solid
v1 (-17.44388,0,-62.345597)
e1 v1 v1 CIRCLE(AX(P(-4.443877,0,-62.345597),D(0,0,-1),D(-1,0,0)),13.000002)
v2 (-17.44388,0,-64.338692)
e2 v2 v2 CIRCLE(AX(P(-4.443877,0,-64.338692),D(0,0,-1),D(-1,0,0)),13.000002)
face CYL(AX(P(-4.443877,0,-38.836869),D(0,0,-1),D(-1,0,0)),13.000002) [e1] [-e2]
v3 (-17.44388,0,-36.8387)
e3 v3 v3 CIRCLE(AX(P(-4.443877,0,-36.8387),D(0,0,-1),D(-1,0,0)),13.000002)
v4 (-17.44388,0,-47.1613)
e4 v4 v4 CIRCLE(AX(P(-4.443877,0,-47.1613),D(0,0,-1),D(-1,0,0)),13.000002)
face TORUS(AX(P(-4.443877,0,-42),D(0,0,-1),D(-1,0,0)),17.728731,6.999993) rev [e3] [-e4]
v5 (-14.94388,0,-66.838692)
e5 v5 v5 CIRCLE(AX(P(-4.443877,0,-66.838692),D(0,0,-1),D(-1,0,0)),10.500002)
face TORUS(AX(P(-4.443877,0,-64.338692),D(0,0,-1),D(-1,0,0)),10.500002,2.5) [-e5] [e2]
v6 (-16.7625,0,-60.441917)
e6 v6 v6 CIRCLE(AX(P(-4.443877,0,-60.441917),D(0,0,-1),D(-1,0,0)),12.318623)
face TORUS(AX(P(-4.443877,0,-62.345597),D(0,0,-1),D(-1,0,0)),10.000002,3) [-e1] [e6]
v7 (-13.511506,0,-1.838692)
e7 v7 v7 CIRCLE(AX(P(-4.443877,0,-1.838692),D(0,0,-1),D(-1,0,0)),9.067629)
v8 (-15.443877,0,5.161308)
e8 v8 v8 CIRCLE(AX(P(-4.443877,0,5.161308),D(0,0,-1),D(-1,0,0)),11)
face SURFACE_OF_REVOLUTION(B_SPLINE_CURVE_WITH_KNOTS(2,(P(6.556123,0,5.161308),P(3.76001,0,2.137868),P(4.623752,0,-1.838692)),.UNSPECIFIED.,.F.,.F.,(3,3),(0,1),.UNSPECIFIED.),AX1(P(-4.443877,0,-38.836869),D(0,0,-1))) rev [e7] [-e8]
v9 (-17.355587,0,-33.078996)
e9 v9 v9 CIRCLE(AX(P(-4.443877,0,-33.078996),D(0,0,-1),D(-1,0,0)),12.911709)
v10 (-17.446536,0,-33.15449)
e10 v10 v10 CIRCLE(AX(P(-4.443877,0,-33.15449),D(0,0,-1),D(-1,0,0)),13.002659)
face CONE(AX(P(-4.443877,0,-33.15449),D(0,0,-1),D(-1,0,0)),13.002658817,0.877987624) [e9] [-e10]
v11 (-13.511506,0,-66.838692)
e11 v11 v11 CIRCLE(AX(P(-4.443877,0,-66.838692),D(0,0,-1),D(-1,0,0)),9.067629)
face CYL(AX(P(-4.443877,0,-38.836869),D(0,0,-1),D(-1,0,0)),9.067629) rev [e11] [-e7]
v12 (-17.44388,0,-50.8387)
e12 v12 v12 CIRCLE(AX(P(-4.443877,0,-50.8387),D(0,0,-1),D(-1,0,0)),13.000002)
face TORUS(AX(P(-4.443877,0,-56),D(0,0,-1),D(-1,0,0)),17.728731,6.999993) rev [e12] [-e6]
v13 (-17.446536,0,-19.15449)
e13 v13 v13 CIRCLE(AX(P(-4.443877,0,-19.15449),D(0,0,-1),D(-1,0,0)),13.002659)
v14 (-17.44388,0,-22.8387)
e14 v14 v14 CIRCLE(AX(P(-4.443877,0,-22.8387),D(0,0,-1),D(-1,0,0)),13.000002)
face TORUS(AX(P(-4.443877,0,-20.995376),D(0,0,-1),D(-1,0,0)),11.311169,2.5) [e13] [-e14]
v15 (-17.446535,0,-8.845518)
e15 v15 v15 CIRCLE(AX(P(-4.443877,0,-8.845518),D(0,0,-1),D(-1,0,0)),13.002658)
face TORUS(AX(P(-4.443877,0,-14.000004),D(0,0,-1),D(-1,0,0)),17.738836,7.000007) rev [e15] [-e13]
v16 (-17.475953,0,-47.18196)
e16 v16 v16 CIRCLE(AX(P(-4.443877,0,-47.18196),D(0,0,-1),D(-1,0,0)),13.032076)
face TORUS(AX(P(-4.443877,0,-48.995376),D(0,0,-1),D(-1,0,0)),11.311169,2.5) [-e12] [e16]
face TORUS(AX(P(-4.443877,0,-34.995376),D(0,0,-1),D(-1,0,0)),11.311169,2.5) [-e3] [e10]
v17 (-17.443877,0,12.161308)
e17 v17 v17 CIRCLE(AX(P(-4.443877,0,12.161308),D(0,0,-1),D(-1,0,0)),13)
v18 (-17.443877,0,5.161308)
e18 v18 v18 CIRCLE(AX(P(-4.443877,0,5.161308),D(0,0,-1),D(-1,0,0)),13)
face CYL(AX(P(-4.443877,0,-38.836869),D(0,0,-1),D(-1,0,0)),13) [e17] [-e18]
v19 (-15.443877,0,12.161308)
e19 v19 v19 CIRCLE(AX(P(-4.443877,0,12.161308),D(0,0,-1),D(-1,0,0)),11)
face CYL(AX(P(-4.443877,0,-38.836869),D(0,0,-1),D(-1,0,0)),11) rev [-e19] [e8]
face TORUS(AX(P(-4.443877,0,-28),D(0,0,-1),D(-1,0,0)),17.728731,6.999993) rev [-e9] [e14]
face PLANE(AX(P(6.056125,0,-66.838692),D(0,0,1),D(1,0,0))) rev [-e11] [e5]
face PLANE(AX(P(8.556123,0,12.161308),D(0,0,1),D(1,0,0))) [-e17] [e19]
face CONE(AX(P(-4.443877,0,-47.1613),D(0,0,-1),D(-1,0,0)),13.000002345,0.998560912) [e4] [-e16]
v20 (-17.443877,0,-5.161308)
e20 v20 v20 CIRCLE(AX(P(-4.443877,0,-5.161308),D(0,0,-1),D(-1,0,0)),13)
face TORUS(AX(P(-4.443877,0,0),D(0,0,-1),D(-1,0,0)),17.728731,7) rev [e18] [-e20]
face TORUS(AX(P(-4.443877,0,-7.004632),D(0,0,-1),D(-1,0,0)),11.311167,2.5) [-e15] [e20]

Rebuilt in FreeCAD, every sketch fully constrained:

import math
import FreeCAD as App
import Part
import Sketcher
Q = App.Units.Quantity

doc = App.newDocument("Part")
body = doc.addObject("PartDesign::Body", "Body")

# Sketch on XZ plane
sketch1 = doc.addObject("Sketcher::SketchObject", "Sketch")
body.addObject(sketch1)
sketch1.AttachmentSupport = (doc.XZ_Plane, [""])
sketch1.MapMode = "FlatFace"
sketch1.addGeometry([
    Part.LineSegment(App.Vector(6.556123, 12.161308, 0), App.Vector(8.556123, 12.161308, 0)),  # 0
    Part.LineSegment(App.Vector(8.556123, 12.161308, 0), App.Vector(8.556123, 5.161308, 0)),  # 1
    Part.ArcOfCircle(Part.Circle(App.Vector(13.284854, 0, 0), App.Vector(0, 0, 1), 7), math.radians(132.495557), math.radians(227.504443)),  # 2
    Part.ArcOfCircle(Part.Circle(App.Vector(6.86729, -7.004632, 0), App.Vector(0, 0, 1), 2.5), math.radians(-47.421777), math.radians(47.504443)),  # 3
    Part.ArcOfCircle(Part.Circle(App.Vector(13.294958, -14.000004, 0), App.Vector(0, 0, 1), 7.000007), math.radians(132.578223), math.radians(227.421789)),  # 4
    Part.ArcOfCircle(Part.Circle(App.Vector(6.867291, -20.995376, 0), App.Vector(0, 0, 1), 2.5), math.radians(-47.504414), math.radians(47.421789)),  # 5
    Part.ArcOfCircle(Part.Circle(App.Vector(13.284854, -28, 0), App.Vector(0, 0, 1), 6.999993), math.radians(132.495586), math.radians(226.516418)),  # 6
    Part.LineSegment(App.Vector(8.467832, -33.078996, 0), App.Vector(8.558781, -33.15449, 0)),  # 7
    Part.ArcOfCircle(Part.Circle(App.Vector(6.867291, -34.995376, 0), App.Vector(0, 0, 1), 2.5), math.radians(-47.504414), math.radians(47.421789)),  # 8
    Part.ArcOfCircle(Part.Circle(App.Vector(13.284854, -42, 0), App.Vector(0, 0, 1), 6.999993), math.radians(132.495586), math.radians(227.504414)),  # 9
    Part.LineSegment(App.Vector(8.556125, -47.1613, 0), App.Vector(8.588198, -47.18196, 0)),  # 10
    Part.ArcOfCircle(Part.Circle(App.Vector(6.867291, -48.995376, 0), App.Vector(0, 0, 1), 2.5), math.radians(-47.504414), math.radians(46.499359)),  # 11
    Part.ArcOfCircle(Part.Circle(App.Vector(13.284854, -56, 0), App.Vector(0, 0, 1), 6.999993), math.radians(132.495586), math.radians(219.387372)),  # 12
    Part.ArcOfCircle(Part.Circle(App.Vector(5.556125, -62.345597, 0), App.Vector(0, 0, 1), 3), math.radians(0), math.radians(39.387372)),  # 13
    Part.LineSegment(App.Vector(8.556125, -62.345597, 0), App.Vector(8.556125, -64.338692, 0)),  # 14
    Part.ArcOfCircle(Part.Circle(App.Vector(6.056125, -64.338692, 0), App.Vector(0, 0, 1), 2.5), math.radians(-90), math.radians(0)),  # 15
    Part.LineSegment(App.Vector(6.056125, -66.838692, 0), App.Vector(4.623752, -66.838692, 0)),  # 16
    Part.LineSegment(App.Vector(4.623752, -66.838692, 0), App.Vector(4.623752, -1.838692, 0)),  # 17
    Part.BSplineCurve([App.Vector(6.556123, 5.161308, 0), App.Vector(3.76001, 2.137868, 0), App.Vector(4.623752, -1.838692, 0)], [3, 3], [0, 1], False, 2, [1, 1, 1], False),  # 18
    Part.LineSegment(App.Vector(6.556123, 5.161308, 0), App.Vector(6.556123, 12.161308, 0)),  # 19
], False)
sketch1.addGeometry(Part.LineSegment(App.Vector(-4.443877, -66.838692, 0), App.Vector(-4.443877, 12.161308, 0)), True)  # axis
sketch1.addConstraint([
    Sketcher.Constraint("Block", 18),
    Sketcher.Constraint("Coincident", 0, 2, 1, 1),
    Sketcher.Constraint("Coincident", 1, 2, 2, 1),
    Sketcher.Constraint("Tangent", 2, 2, 3, 2),
    Sketcher.Constraint("Tangent", 3, 1, 4, 1),
    Sketcher.Constraint("Tangent", 4, 2, 5, 2),
    Sketcher.Constraint("Tangent", 5, 1, 6, 1),
    Sketcher.Constraint("Coincident", 6, 2, 7, 1),
    Sketcher.Constraint("Coincident", 7, 2, 8, 2),
    Sketcher.Constraint("Tangent", 8, 1, 9, 1),
    Sketcher.Constraint("Coincident", 9, 2, 10, 1),
    Sketcher.Constraint("Coincident", 10, 2, 11, 2),
    Sketcher.Constraint("Tangent", 11, 1, 12, 1),
    Sketcher.Constraint("Tangent", 12, 2, 13, 2),
    Sketcher.Constraint("Tangent", 13, 1, 14, 1),
    Sketcher.Constraint("Tangent", 14, 2, 15, 2),
    Sketcher.Constraint("Tangent", 15, 1, 16, 1),
    Sketcher.Constraint("Coincident", 16, 2, 17, 1),
    Sketcher.Constraint("Coincident", 17, 2, 18, 2),
    Sketcher.Constraint("Coincident", 18, 1, 19, 1),
    Sketcher.Constraint("Coincident", 19, 2, 0, 1),
    Sketcher.Constraint("Horizontal", 0),
    Sketcher.Constraint("Vertical", 1),
    Sketcher.Constraint("Vertical", 14),
    Sketcher.Constraint("Horizontal", 16),
    Sketcher.Constraint("Vertical", 17),
    Sketcher.Constraint("Vertical", 19),
    Sketcher.Constraint("Vertical", 20),
    Sketcher.Constraint("Equal", 3, 5),
    Sketcher.Constraint("Equal", 5, 8),
    Sketcher.Constraint("Equal", 6, 9),
    Sketcher.Constraint("Equal", 8, 11),
    Sketcher.Constraint("Equal", 9, 12),
    Sketcher.Constraint("Equal", 11, 15),
    Sketcher.Constraint("Symmetric", 1, 2, 2, 2, -1),
    Sketcher.Constraint("Horizontal", 16, 2, 20, 1),
    Sketcher.Constraint("Horizontal", 19, 2, 20, 2),
    Sketcher.Constraint("Vertical", 3, 3, 5, 3),
    Sketcher.Constraint("Vertical", 2, 3, 6, 3),
    Sketcher.Constraint("Vertical", 5, 3, 8, 3),
    Sketcher.Constraint("Vertical", 6, 3, 9, 3),
    Sketcher.Constraint("Vertical", 8, 3, 11, 3),
    Sketcher.Constraint("Vertical", 9, 3, 12, 3),
    Sketcher.Constraint("Vertical", 4, 2, 7, 2),
    Sketcher.Constraint("Vertical", 8, 1, 9, 2),
    Sketcher.Constraint("Vertical", 11, 1, 13, 1),
    Sketcher.Constraint("Equal", 1, 19),
    Sketcher.Constraint("Radius", 2, Q("7 mm")),
    Sketcher.Constraint("Radius", 13, Q("3 mm")),
    Sketcher.Constraint("Radius", 3, Q("2.5 mm")),
    Sketcher.Constraint("DistanceX", 0, 1, 0, 2, Q("2 mm")),
    Sketcher.Constraint("DistanceY", 1, 2, 1, 1, Q("7 mm")),
    Sketcher.Constraint("DistanceY", 17, 1, 17, 2, Q("65 mm")),
    Sketcher.Constraint("DistanceY", 6, 3, -1, 1, Q("28 mm")),
    Sketcher.Constraint("DistanceY", 9, 3, -1, 1, Q("42 mm")),
    Sketcher.Constraint("DistanceY", 12, 3, -1, 1, Q("56 mm")),
    Sketcher.Constraint("DistanceX", 20, 2, 19, 2, Q("11 mm")),
    Sketcher.Constraint("Radius", 4, Q("7.000007 mm")),
    Sketcher.Constraint("Radius", 6, Q("6.999993 mm")),
    Sketcher.Constraint("Distance", 7, Q("0.1182 mm")),
    Sketcher.Constraint("DistanceX", -1, 1, 10, 2, Q("8.588198 mm")),
])
revolution = doc.addObject("PartDesign::Revolution", "Revolution")
body.addObject(revolution)
revolution.Profile = sketch1
revolution.ReferenceAxis = (sketch1, ["Axis0"])
revolution.Angle = 360

doc.recompute()
